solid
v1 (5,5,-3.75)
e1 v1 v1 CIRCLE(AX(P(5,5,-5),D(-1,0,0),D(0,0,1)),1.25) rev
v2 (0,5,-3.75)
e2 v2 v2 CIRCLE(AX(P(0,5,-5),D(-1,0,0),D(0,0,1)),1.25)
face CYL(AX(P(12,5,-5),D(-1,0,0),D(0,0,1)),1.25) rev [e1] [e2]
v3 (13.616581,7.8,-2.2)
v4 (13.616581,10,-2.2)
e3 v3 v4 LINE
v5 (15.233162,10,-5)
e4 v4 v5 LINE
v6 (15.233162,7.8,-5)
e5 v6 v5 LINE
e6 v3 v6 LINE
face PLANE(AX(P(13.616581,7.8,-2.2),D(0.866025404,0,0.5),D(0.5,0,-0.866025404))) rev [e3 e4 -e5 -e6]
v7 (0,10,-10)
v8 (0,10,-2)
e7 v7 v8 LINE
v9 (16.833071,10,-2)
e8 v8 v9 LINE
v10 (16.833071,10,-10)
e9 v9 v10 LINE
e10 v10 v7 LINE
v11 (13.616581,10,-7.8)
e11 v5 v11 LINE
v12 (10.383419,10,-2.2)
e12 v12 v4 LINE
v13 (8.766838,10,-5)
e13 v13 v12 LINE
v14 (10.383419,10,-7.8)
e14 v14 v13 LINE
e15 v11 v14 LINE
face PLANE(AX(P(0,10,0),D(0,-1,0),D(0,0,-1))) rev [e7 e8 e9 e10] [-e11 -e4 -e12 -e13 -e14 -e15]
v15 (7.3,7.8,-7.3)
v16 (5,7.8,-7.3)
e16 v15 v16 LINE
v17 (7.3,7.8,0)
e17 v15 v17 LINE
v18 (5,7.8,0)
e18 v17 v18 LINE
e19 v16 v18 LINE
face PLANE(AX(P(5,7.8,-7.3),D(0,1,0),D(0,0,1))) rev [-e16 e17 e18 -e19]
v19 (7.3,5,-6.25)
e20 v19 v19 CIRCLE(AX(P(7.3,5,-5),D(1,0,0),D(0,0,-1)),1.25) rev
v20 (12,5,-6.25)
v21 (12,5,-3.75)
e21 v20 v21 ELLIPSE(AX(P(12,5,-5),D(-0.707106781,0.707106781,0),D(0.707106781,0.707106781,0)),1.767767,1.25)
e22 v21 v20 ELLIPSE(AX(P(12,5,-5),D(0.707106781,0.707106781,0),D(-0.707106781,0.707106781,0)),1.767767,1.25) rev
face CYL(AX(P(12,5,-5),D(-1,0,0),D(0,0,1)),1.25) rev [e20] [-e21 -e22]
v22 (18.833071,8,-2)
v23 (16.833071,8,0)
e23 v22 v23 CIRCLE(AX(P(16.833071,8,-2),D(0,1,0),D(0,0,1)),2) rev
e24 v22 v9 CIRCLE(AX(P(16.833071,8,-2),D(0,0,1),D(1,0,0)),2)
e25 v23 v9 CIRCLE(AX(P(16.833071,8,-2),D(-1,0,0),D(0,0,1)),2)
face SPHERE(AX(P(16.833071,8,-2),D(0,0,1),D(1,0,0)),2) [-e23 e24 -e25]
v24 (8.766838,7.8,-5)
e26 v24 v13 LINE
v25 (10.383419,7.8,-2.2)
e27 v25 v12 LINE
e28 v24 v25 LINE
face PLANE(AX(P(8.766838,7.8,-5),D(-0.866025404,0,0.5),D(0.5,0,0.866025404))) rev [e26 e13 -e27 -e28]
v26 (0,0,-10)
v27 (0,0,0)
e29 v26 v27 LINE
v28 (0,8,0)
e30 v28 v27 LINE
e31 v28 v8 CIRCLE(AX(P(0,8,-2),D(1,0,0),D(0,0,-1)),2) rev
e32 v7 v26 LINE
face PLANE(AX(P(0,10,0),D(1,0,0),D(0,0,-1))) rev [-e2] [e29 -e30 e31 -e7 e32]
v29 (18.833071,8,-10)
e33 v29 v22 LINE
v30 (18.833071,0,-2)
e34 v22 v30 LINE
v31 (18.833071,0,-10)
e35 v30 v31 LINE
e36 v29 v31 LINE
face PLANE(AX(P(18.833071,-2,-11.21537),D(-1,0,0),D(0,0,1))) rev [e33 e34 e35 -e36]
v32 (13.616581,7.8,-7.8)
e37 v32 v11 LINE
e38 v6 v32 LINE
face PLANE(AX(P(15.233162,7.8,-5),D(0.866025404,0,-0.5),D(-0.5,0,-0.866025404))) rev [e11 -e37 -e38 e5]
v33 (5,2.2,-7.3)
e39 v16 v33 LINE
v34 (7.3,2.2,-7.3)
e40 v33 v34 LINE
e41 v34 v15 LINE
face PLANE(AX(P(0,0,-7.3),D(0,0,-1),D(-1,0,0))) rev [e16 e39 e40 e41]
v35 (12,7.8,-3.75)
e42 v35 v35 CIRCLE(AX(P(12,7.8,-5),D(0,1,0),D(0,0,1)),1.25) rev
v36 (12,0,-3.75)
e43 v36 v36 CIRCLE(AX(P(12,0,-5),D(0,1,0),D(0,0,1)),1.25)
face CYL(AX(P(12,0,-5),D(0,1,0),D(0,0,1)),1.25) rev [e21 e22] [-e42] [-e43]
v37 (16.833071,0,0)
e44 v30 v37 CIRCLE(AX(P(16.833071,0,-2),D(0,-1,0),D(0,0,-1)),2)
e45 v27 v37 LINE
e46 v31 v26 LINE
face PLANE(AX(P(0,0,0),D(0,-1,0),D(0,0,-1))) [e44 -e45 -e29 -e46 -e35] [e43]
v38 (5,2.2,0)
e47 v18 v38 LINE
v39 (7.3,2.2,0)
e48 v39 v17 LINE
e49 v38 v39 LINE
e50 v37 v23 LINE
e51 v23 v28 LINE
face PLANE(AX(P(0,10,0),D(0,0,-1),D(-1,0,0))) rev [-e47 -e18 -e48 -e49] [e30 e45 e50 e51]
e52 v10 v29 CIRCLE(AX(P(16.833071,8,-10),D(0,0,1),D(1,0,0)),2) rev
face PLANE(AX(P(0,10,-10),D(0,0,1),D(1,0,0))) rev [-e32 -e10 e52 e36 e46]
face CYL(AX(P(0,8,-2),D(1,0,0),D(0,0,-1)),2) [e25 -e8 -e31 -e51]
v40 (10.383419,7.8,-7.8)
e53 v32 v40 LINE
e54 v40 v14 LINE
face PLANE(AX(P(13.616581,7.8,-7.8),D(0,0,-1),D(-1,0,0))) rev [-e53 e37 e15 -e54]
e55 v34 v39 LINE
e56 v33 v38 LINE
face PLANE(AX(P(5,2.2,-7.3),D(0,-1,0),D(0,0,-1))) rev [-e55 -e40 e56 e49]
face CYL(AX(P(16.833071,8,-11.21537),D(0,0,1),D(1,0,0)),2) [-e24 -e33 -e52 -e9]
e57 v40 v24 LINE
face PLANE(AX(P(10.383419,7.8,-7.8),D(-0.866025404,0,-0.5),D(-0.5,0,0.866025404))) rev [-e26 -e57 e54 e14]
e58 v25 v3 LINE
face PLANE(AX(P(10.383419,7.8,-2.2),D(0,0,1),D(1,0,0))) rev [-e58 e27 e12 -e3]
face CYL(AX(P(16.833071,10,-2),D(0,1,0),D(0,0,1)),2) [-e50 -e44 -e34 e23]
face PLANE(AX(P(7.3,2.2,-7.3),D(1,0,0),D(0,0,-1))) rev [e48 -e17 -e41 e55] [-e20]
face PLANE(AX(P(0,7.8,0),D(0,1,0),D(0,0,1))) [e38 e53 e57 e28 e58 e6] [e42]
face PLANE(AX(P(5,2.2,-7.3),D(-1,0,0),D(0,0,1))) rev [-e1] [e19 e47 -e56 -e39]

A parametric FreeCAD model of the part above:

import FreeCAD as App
import Part
import Sketcher

V = App.Vector
Q = App.Units.Quantity


def edges_at(feature, points):
    """Names of the edges that pass closest to the given points."""
    edges = feature.Shape.Edges
    near = lambda p: min(range(len(edges)), key=lambda i: edges[i].distToShape(Part.Vertex(*p))[0])
    return sorted({f"Edge{near(p) + 1}" for p in points})

doc = App.newDocument("Part")
body = doc.addObject("PartDesign::Body", "Body")

# Sketch on XZ plane
sketch1 = body.newObject("Sketcher::SketchObject", "Sketch")
sketch1.AttachmentSupport = (doc.getObject("XZ_Plane"), [""])
sketch1.MapMode = "FlatFace"
sketch1.addGeometry([
    Part.LineSegment(V(0, -10, 0), V(0, 0, 0)),
    Part.LineSegment(V(0, 0, 0), V(74.5, 0, 0)),
    Part.LineSegment(V(74.5, 0, 0), V(74.5, -10, 0)),
    Part.LineSegment(V(74.5, -10, 0), V(0, -10, 0)),
], False)
sketch1.addConstraint([
    Sketcher.Constraint("Coincident", 0, 2, 1, 1),
    Sketcher.Constraint("Coincident", 1, 2, 2, 1),
    Sketcher.Constraint("Coincident", 2, 2, 3, 1),
    Sketcher.Constraint("Coincident", 3, 2, 0, 1),
    Sketcher.Constraint("Vertical", 0),
    Sketcher.Constraint("Horizontal", 1),
    Sketcher.Constraint("Vertical", 2),
    Sketcher.Constraint("Horizontal", 3),
    Sketcher.Constraint("Coincident", 0, 2, -1, 1),
    Sketcher.Constraint("DistanceY", 0, 1, 0, 2, Q("10 mm")),
    Sketcher.Constraint("DistanceX", 1, 1, 1, 2, Q("74.5 mm")),
])
pad1 = body.newObject("PartDesign::Pad", "Pad")
pad1.Profile = sketch1
pad1.Length = 10
pad1.Reversed = True

# Sketch on XZ plane
sketch2 = body.newObject("Sketcher::SketchObject", "Sketch001")
sketch2.AttachmentSupport = (doc.getObject("XZ_Plane"), [""])
sketch2.MapMode = "FlatFace"
sketch2.AttachmentOffset = App.Placement(V(0, 0, -10), App.Rotation())
sketch2.addGeometry([
    Part.Circle(V(12, -5, 0), V(0, 0, 1), 1.25),
    Part.Circle(V(62.5, -5, 0), V(0, 0, 1), 1.25),
], False)
sketch2.addConstraint([
    Sketcher.Constraint("Equal", 0, 1),
    Sketcher.Constraint("Horizontal", 0, 3, 1, 3),
    Sketcher.Constraint("Diameter", 0, Q("2.5 mm")),
    Sketcher.Constraint("DistanceX", -1, 1, 0, 3, Q("12 mm")),
    Sketcher.Constraint("DistanceY", 0, 3, -1, 1, Q("5 mm")),
    Sketcher.Constraint("DistanceX", -1, 1, 1, 3, Q("62.5 mm")),
])
pocket1 = body.newObject("PartDesign::Pocket", "Pocket")
pocket1.Profile = sketch2
pocket1.Length = 10
pocket1.Reversed = True

# Sketch on YZ plane
sketch3 = body.newObject("Sketcher::SketchObject", "Sketch002")
sketch3.AttachmentSupport = (doc.getObject("YZ_Plane"), [""])
sketch3.MapMode = "FlatFace"
sketch3.AttachmentOffset = App.Placement(V(0, 0, 74.5), App.Rotation())
sketch3.addGeometry(Part.Circle(V(5, -5, 0), V(0, 0, 1), 1.25), False)
sketch3.addConstraint([
    Sketcher.Constraint("Diameter", 0, Q("2.5 mm")),
    Sketcher.Constraint("DistanceX", -1, 1, 0, 3, Q("5 mm")),
    Sketcher.Constraint("DistanceY", 0, 3, -1, 1, Q("5 mm")),
])
pocket2 = body.newObject("PartDesign::Pocket", "Pocket001")
pocket2.Profile = sketch3
pocket2.Length = 5

# Sketch on YZ plane
sketch4 = body.newObject("Sketcher::SketchObject", "Sketch003")
sketch4.AttachmentSupport = (doc.getObject("YZ_Plane"), [""])
sketch4.MapMode = "FlatFace"
sketch4.AttachmentOffset = App.Placement(V(0, 0, 12), App.Rotation())
sketch4.addGeometry(Part.Circle(V(5, -5, 0), V(0, 0, 1), 1.25), False)
sketch4.addConstraint([
    Sketcher.Constraint("Diameter", 0, Q("2.5 mm")),
    Sketcher.Constraint("DistanceX", -1, 1, 0, 3, Q("5 mm")),
    Sketcher.Constraint("DistanceY", 0, 3, -1, 1, Q("5 mm")),
])
pocket3 = body.newObject("PartDesign::Pocket", "Pocket002")
pocket3.Profile = sketch4
pocket3.Length = 12

# Sketch on XZ plane
sketch5 = body.newObject("Sketcher::SketchObject", "Sketch004")
sketch5.AttachmentSupport = (doc.getObject("XZ_Plane"), [""])
sketch5.MapMode = "FlatFace"
sketch5.AttachmentOffset = App.Placement(V(0, 0, -10), App.Rotation())
sketch5.addGeometry([
    Part.LineSegment(V(13.616581, -2.2, 0), V(15.233162, -5, 0)),  # 0
    Part.LineSegment(V(15.233162, -5, 0), V(13.616581, -7.8, 0)),  # 1
    Part.LineSegment(V(13.616581, -7.8, 0), V(10.383419, -7.8, 0)),  # 2
    Part.LineSegment(V(10.383419, -7.8, 0), V(8.766838, -5, 0)),  # 3
    Part.LineSegment(V(8.766838, -5, 0), V(10.383419, -2.2, 0)),  # 4
    Part.LineSegment(V(10.383419, -2.2, 0), V(13.616581, -2.2, 0)),  # 5
], False)
sketch5.addConstraint([
    Sketcher.Constraint("Coincident", 0, 2, 1, 1),
    Sketcher.Constraint("Coincident", 1, 2, 2, 1),
    Sketcher.Constraint("Coincident", 2, 2, 3, 1),
    Sketcher.Constraint("Coincident", 3, 2, 4, 1),
    Sketcher.Constraint("Coincident", 4, 2, 5, 1),
    Sketcher.Constraint("Coincident", 5, 2, 0, 1),
    Sketcher.Constraint("Horizontal", 2),
    Sketcher.Constraint("Horizontal", 5),
    Sketcher.Constraint("Parallel", 0, 3),
    Sketcher.Constraint("Parallel", 1, 4),
    Sketcher.Constraint("Horizontal", 0, 2, 3, 2),
    Sketcher.Constraint("Vertical", 2, 2, 4, 2),
    Sketcher.Constraint("Vertical", 1, 2, 5, 2),
    Sketcher.Constraint("Angle", 0, Q("-60 deg")),
    Sketcher.Constraint("DistanceY", 0, 2, -1, 1, Q("5 mm")),
    Sketcher.Constraint("DistanceY", 1, 2, -1, 1, Q("7.8 mm")),
    Sketcher.Constraint("DistanceX", 2, 2, 2, 1, Q("3.233162 mm")),
    Sketcher.Constraint("DistanceX", -1, 1, 0, 2, Q("15.233162 mm")),
])
pocket4 = body.newObject("PartDesign::Pocket", "Pocket003")
pocket4.Profile = sketch5
pocket4.Length = 2.2
pocket4.Reversed = True

# Sketch on XZ plane
sketch6 = body.newObject("Sketcher::SketchObject", "Sketch005")
sketch6.AttachmentSupport = (doc.getObject("XZ_Plane"), [""])
sketch6.MapMode = "FlatFace"
sketch6.AttachmentOffset = App.Placement(V(0, 0, -10), App.Rotation())
sketch6.addGeometry([
    Part.LineSegment(V(60.883419, -7.8, 0), V(59.266838, -5, 0)),  # 0
    Part.LineSegment(V(59.266838, -5, 0), V(60.883419, -2.2, 0)),  # 1
    Part.LineSegment(V(60.883419, -2.2, 0), V(64.116581, -2.2, 0)),  # 2
    Part.LineSegment(V(64.116581, -2.2, 0), V(65.733162, -5, 0)),  # 3
    Part.LineSegment(V(65.733162, -5, 0), V(64.116581, -7.8, 0)),  # 4
    Part.LineSegment(V(64.116581, -7.8, 0), V(60.883419, -7.8, 0)),  # 5
], False)
sketch6.addConstraint([
    Sketcher.Constraint("Coincident", 0, 2, 1, 1),
    Sketcher.Constraint("Coincident", 1, 2, 2, 1),
    Sketcher.Constraint("Coincident", 2, 2, 3, 1),
    Sketcher.Constraint("Coincident", 3, 2, 4, 1),
    Sketcher.Constraint("Coincident", 4, 2, 5, 1),
    Sketcher.Constraint("Coincident", 5, 2, 0, 1),
    Sketcher.Constraint("Horizontal", 2),
    Sketcher.Constraint("Horizontal", 5),
    Sketcher.Constraint("Parallel", 0, 3),
    Sketcher.Constraint("Parallel", 1, 4),
    Sketcher.Constraint("Horizontal", 0, 2, 3, 2),
    Sketcher.Constraint("Vertical", 2, 2, 4, 2),
    Sketcher.Constraint("Vertical", 1, 2, 5, 2),
    Sketcher.Constraint("Angle", 0, Q("120 deg")),
    Sketcher.Constraint("DistanceY", 0, 2, -1, 1, Q("5 mm")),
    Sketcher.Constraint("DistanceY", 1, 2, -1, 1, Q("2.2 mm")),
    Sketcher.Constraint("DistanceX", 2, 1, 2, 2, Q("3.233162 mm")),
    Sketcher.Constraint("DistanceX", -1, 1, 0, 2, Q("59.266838 mm")),
])
pocket5 = body.newObject("PartDesign::Pocket", "Pocket004")
pocket5.Profile = sketch6
pocket5.Length = 2.2
pocket5.Reversed = True

# Sketch on XY plane
sketch7 = body.newObject("Sketcher::SketchObject", "Sketch006")
sketch7.AttachmentSupport = (doc.getObject("XY_Plane"), [""])
sketch7.MapMode = "FlatFace"
sketch7.addGeometry([
    Part.LineSegment(V(5, 7.8, 0), V(5, 2.2, 0)),  # 0
    Part.LineSegment(V(5, 2.2, 0), V(7.3, 2.2, 0)),  # 1
    Part.LineSegment(V(7.3, 2.2, 0), V(7.3, 7.8, 0)),  # 2
    Part.LineSegment(V(7.3, 7.8, 0), V(5, 7.8, 0)),  # 3
    Part.LineSegment(V(67.2, 7.8, 0), V(67.2, 2.2, 0)),  # 4
    Part.LineSegment(V(67.2, 2.2, 0), V(69.5, 2.2, 0)),  # 5
    Part.LineSegment(V(69.5, 2.2, 0), V(69.5, 7.8, 0)),  # 6
    Part.LineSegment(V(69.5, 7.8, 0), V(67.2, 7.8, 0)),  # 7
], False)
sketch7.addConstraint([
    Sketcher.Constraint("Coincident", 0, 2, 1, 1),
    Sketcher.Constraint("Coincident", 1, 2, 2, 1),
    Sketcher.Constraint("Coincident", 2, 2, 3, 1),
    Sketcher.Constraint("Coincident", 3, 2, 0, 1),
    Sketcher.Constraint("Coincident", 4, 2, 5, 1),
    Sketcher.Constraint("Coincident", 5, 2, 6, 1),
    Sketcher.Constraint("Coincident", 6, 2, 7, 1),
    Sketcher.Constraint("Coincident", 7, 2, 4, 1),
    Sketcher.Constraint("Vertical", 0),
    Sketcher.Constraint("Horizontal", 1),
    Sketcher.Constraint("Vertical", 2),
    Sketcher.Constraint("Horizontal", 3),
    Sketcher.Constraint("Vertical", 4),
    Sketcher.Constraint("Horizontal", 5),
    Sketcher.Constraint("Vertical", 6),
    Sketcher.Constraint("Horizontal", 7),
    Sketcher.Constraint("Horizontal", 1, 2, 4, 2),
    Sketcher.Constraint("Horizontal", 3, 2, 6, 2),
    Sketcher.Constraint("Equal", 3, 5),
    Sketcher.Constraint("DistanceX", 1, 1, 1, 2, Q("2.3 mm")),
    Sketcher.Constraint("DistanceY", 0, 2, 0, 1, Q("5.6 mm")),
    Sketcher.Constraint("DistanceX", -1, 1, 0, 2, Q("5 mm")),
    Sketcher.Constraint("DistanceY", -1, 1, 0, 2, Q("2.2 mm")),
    Sketcher.Constraint("DistanceX", -1, 1, 4, 2, Q("67.2 mm")),
])
pocket6 = body.newObject("PartDesign::Pocket", "Pocket005")
pocket6.Profile = sketch7
pocket6.Length = 7.3

# Sketch on XY plane
sketch8 = body.newObject("Sketcher::SketchObject", "Sketch007")
sketch8.AttachmentSupport = (doc.getObject("XY_Plane"), [""])
sketch8.MapMode = "FlatFace"
sketch8.addGeometry([
    Part.LineSegment(V(26.141569, 29.7047, 0), V(26.141569, -5.483788, 0)),
    Part.LineSegment(V(26.141569, -5.483788, 0), V(118.937561, -5.483788, 0)),
    Part.LineSegment(V(118.937561, -5.483788, 0), V(118.937561, 29.7047, 0)),
    Part.LineSegment(V(118.937561, 29.7047, 0), V(26.141569, 29.7047, 0)),
], False)
sketch8.addConstraint([
    Sketcher.Constraint("Coincident", 0, 2, 1, 1),
    Sketcher.Constraint("Coincident", 1, 2, 2, 1),
    Sketcher.Constraint("Coincident", 2, 2, 3, 1),
    Sketcher.Constraint("Coincident", 3, 2, 0, 1),
    Sketcher.Constraint("Vertical", 0),
    Sketcher.Constraint("Horizontal", 1),
    Sketcher.Constraint("Vertical", 2),
    Sketcher.Constraint("Horizontal", 3),
    Sketcher.Constraint("DistanceX", 1, 1, 1, 2, Q("92.795992 mm")),
    Sketcher.Constraint("DistanceY", -1, 1, 2, 2, Q("29.7047 mm")),
    Sketcher.Constraint("DistanceY", 0, 2, 0, 1, Q("35.188488 mm")),
    Sketcher.Constraint("DistanceX", -1, 1, 0, 2, Q("26.141569 mm")),
])
pocket7 = body.newObject("PartDesign::Pocket", "Pocket006")
pocket7.Profile = sketch8
pocket7.Length = 14

# Sketch on XZ plane
sketch9 = body.newObject("Sketcher::SketchObject", "Sketch008")
sketch9.AttachmentSupport = (doc.getObject("XZ_Plane"), [""])
sketch9.MapMode = "FlatFace"
sketch9.AttachmentOffset = App.Placement(V(0, 0, -10), App.Rotation())
sketch9.addGeometry([
    Part.LineSegment(V(18.833071, -11.21537, 0), V(18.833071, 1.099194, 0)),
    Part.LineSegment(V(18.833071, 1.099194, 0), V(26.942095, 1.099194, 0)),
    Part.LineSegment(V(26.942095, 1.099194, 0), V(26.942095, -11.21537, 0)),
    Part.LineSegment(V(26.942095, -11.21537, 0), V(18.833071, -11.21537, 0)),
], False)
sketch9.addConstraint([
    Sketcher.Constraint("Coincident", 0, 2, 1, 1),
    Sketcher.Constraint("Coincident", 1, 2, 2, 1),
    Sketcher.Constraint("Coincident", 2, 2, 3, 1),
    Sketcher.Constraint("Coincident", 3, 2, 0, 1),
    Sketcher.Constraint("Vertical", 0),
    Sketcher.Constraint("Horizontal", 1),
    Sketcher.Constraint("Vertical", 2),
    Sketcher.Constraint("Horizontal", 3),
    Sketcher.Constraint("DistanceX", 1, 1, 1, 2, Q("8.109024 mm")),
    Sketcher.Constraint("DistanceY", 0, 1, 0, 2, Q("12.314564 mm")),
    Sketcher.Constraint("DistanceX", -1, 1, 0, 2, Q("18.833071 mm")),
    Sketcher.Constraint("DistanceY", 2, 2, -1, 1, Q("11.21537 mm")),
])
pocket8 = body.newObject("PartDesign::Pocket", "Pocket007")
pocket8.Profile = sketch9
pocket8.Length = 12
pocket8.Reversed = True
doc.recompute()

fillet = body.newObject("PartDesign::Fillet", "Fillet")
fillet.Base = (pocket8, edges_at(pocket8, [(18.833, 5, 0)]))
fillet.Radius = 2
doc.recompute()

fillet2 = body.newObject("PartDesign::Fillet", "Fillet001")
fillet2.Base = (fillet, edges_at(fillet, [(18.833, 10, -6), (18.247, 10, -0.586), (8.417, 10, 0)]))
fillet2.Radius = 2

doc.recompute()
